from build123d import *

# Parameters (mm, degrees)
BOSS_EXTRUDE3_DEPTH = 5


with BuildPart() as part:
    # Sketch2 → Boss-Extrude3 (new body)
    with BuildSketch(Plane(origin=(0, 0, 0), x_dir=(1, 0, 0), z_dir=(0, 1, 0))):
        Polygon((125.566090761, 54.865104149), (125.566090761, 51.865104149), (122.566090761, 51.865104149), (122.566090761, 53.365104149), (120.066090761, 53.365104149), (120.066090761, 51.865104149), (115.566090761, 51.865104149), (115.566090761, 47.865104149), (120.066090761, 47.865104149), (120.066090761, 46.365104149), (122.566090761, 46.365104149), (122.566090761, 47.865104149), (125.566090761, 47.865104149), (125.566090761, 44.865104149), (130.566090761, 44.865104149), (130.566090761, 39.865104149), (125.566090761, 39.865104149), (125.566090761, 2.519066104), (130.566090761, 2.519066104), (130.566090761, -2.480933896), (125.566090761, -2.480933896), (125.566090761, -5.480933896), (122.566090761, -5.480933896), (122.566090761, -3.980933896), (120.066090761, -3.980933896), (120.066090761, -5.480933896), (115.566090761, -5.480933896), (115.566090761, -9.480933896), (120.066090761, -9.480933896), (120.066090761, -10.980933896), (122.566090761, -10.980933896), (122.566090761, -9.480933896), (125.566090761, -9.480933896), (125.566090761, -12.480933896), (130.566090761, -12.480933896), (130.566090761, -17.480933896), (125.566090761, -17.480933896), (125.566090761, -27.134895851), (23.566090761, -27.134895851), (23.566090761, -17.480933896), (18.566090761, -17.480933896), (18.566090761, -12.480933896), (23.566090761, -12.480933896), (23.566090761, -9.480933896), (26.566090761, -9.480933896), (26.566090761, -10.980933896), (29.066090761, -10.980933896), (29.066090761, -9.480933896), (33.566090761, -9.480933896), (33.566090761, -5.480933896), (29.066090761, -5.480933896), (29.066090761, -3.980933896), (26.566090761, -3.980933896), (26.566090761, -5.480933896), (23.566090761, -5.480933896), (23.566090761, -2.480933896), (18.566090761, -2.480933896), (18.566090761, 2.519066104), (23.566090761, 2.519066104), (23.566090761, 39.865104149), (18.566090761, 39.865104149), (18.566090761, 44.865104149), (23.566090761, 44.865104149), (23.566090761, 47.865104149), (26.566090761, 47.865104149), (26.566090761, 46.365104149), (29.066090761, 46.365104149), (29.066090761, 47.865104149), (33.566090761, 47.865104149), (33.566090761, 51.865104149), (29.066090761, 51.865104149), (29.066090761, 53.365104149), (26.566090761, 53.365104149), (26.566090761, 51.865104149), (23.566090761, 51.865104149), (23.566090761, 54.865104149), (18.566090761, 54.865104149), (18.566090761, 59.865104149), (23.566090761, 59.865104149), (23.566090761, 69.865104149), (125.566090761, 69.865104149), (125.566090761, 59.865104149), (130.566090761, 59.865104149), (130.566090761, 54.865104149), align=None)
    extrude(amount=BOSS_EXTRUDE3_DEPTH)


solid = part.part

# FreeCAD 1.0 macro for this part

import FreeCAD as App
import Part
import Sketcher
from FreeCAD import Vector


def add_polygon(sketch, points):
    """Adds a closed chain of lines whose ends are joined by coincident constraints."""
    first, n = sketch.GeometryCount, len(points)
    for a, b in zip(points, points[1:] + points[:1]):
        sketch.addGeometry(Part.LineSegment(App.Vector(*a, 0), App.Vector(*b, 0)), False)
    for i in range(n):
        sketch.addConstraint(Sketcher.Constraint("Coincident", first + i, 2, first + (i + 1) % n, 1))

doc = App.newDocument("Part")
body = doc.addObject("PartDesign::Body", "Body")

# Sketch on XZ plane
sketch1 = doc.addObject("Sketcher::SketchObject", "Sketch")
body.addObject(sketch1)
sketch1.AttachmentSupport = (doc.XZ_Plane, [""])
sketch1.MapMode = "FlatFace"
add_polygon(sketch1, [(125.6, -51.9), (125.6, -54.9), (130.6, -54.9), (130.6, -59.9), (125.6, -59.9), (125.6, -69.9), (23.6, -69.9), (23.6, -59.9), (18.6, -59.9), (18.6, -54.9), (23.6, -54.9), (23.6, -51.9), (26.6, -51.9), (26.6, -53.4), (29.1, -53.4), (29.1, -51.9), (33.6, -51.9), (33.6, -47.9), (29.1, -47.9), (29.1, -46.4), (26.6, -46.4), (26.6, -47.9), (23.6, -47.9), (23.6, -44.9), (18.6, -44.9), (18.6, -39.9), (23.6, -39.9), (23.6, -2.5), (18.6, -2.5), (18.6, 2.5), (23.6, 2.5), (23.6, 5.5), (26.6, 5.5), (26.6, 4), (29.1, 4), (29.1, 5.5), (33.6, 5.5), (33.6, 9.5), (29.1, 9.5), (29.1, 11), (26.6, 11), (26.6, 9.5), (23.6, 9.5), (23.6, 12.5), (18.6, 12.5), (18.6, 17.5), (23.6, 17.5), (23.6, 27.1), (125.6, 27.1), (125.6, 17.5), (130.6, 17.5), (130.6, 12.5), (125.6, 12.5), (125.6, 9.5), (122.6, 9.5), (122.6, 11), (120.1, 11), (120.1, 9.5), (115.6, 9.5), (115.6, 5.5), (120.1, 5.5), (120.1, 4), (122.6, 4), (122.6, 5.5), (125.6, 5.5), (125.6, 2.5), (130.6, 2.5), (130.6, -2.5), (125.6, -2.5), (125.6, -39.9), (130.6, -39.9), (130.6, -44.9), (125.6, -44.9), (125.6, -47.9), (122.6, -47.9), (122.6, -46.4), (120.1, -46.4), (120.1, -47.9), (115.6, -47.9), (115.6, -51.9), (120.1, -51.9), (120.1, -53.4), (122.6, -53.4), (122.6, -51.9)])  # lines 0-83
sketch1.addConstraint(Sketcher.Constraint("Vertical", 0))
sketch1.addConstraint(Sketcher.Constraint("Horizontal", 1))
sketch1.addConstraint(Sketcher.Constraint("Vertical", 2))
sketch1.addConstraint(Sketcher.Constraint("Horizontal", 3))
sketch1.addConstraint(Sketcher.Constraint("Vertical", 4))
sketch1.addConstraint(Sketcher.Constraint("Horizontal", 5))
sketch1.addConstraint(Sketcher.Constraint("Vertical", 6))
sketch1.addConstraint(Sketcher.Constraint("Horizontal", 7))
sketch1.addConstraint(Sketcher.Constraint("Vertical", 8))
sketch1.addConstraint(Sketcher.Constraint("Horizontal", 9))
sketch1.addConstraint(Sketcher.Constraint("Vertical", 10))
sketch1.addConstraint(Sketcher.Constraint("Horizontal", 11))
sketch1.addConstraint(Sketcher.Constraint("Vertical", 12))
sketch1.addConstraint(Sketcher.Constraint("Horizontal", 13))
sketch1.addConstraint(Sketcher.Constraint("Vertical", 14))
sketch1.addConstraint(Sketcher.Constraint("Horizontal", 15))
sketch1.addConstraint(Sketcher.Constraint("Vertical", 16))
sketch1.addConstraint(Sketcher.Constraint("Horizontal", 17))
sketch1.addConstraint(Sketcher.Constraint("Vertical", 18))
sketch1.addConstraint(Sketcher.Constraint("Horizontal", 19))
sketch1.addConstraint(Sketcher.Constraint("Vertical", 20))
sketch1.addConstraint(Sketcher.Constraint("Horizontal", 21))
sketch1.addConstraint(Sketcher.Constraint("Vertical", 22))
sketch1.addConstraint(Sketcher.Constraint("Horizontal", 23))
sketch1.addConstraint(Sketcher.Constraint("Vertical", 24))
sketch1.addConstraint(Sketcher.Constraint("Horizontal", 25))
sketch1.addConstraint(Sketcher.Constraint("Vertical", 26))
sketch1.addConstraint(Sketcher.Constraint("Horizontal", 27))
sketch1.addConstraint(Sketcher.Constraint("Vertical", 28))
sketch1.addConstraint(Sketcher.Constraint("Horizontal", 29))
sketch1.addConstraint(Sketcher.Constraint("Vertical", 30))
sketch1.addConstraint(Sketcher.Constraint("Horizontal", 31))
sketch1.addConstraint(Sketcher.Constraint("Vertical", 32))
sketch1.addConstraint(Sketcher.Constraint("Horizontal", 33))
sketch1.addConstraint(Sketcher.Constraint("Vertical", 34))
sketch1.addConstraint(Sketcher.Constraint("Horizontal", 35))
sketch1.addConstraint(Sketcher.Constraint("Vertical", 36))
sketch1.addConstraint(Sketcher.Constraint("Horizontal", 37))
sketch1.addConstraint(Sketcher.Constraint("Vertical", 38))
sketch1.addConstraint(Sketcher.Constraint("Horizontal", 39))
sketch1.addConstraint(Sketcher.Constraint("Vertical", 40))
sketch1.addConstraint(Sketcher.Constraint("Horizontal", 41))
sketch1.addConstraint(Sketcher.Constraint("Vertical", 42))
sketch1.addConstraint(Sketcher.Constraint("Horizontal", 43))
sketch1.addConstraint(Sketcher.Constraint("Vertical", 44))
sketch1.addConstraint(Sketcher.Constraint("Horizontal", 45))
sketch1.addConstraint(Sketcher.Constraint("Vertical", 46))
sketch1.addConstraint(Sketcher.Constraint("Horizontal", 47))
sketch1.addConstraint(Sketcher.Constraint("Vertical", 48))
sketch1.addConstraint(Sketcher.Constraint("Horizontal", 49))
sketch1.addConstraint(Sketcher.Constraint("Vertical", 50))
sketch1.addConstraint(Sketcher.Constraint("Horizontal", 51))
sketch1.addConstraint(Sketcher.Constraint("Vertical", 52))
sketch1.addConstraint(Sketcher.Constraint("Horizontal", 53))
sketch1.addConstraint(Sketcher.Constraint("Vertical", 54))
sketch1.addConstraint(Sketcher.Constraint("Horizontal", 55))
sketch1.addConstraint(Sketcher.Constraint("Vertical", 56))
sketch1.addConstraint(Sketcher.Constraint("Horizontal", 57))
sketch1.addConstraint(Sketcher.Constraint("Vertical", 58))
sketch1.addConstraint(Sketcher.Constraint("Horizontal", 59))
sketch1.addConstraint(Sketcher.Constraint("Vertical", 60))
sketch1.addConstraint(Sketcher.Constraint("Horizontal", 61))
sketch1.addConstraint(Sketcher.Constraint("Vertical", 62))
sketch1.addConstraint(Sketcher.Constraint("Horizontal", 63))
sketch1.addConstraint(Sketcher.Constraint("Vertical", 64))
sketch1.addConstraint(Sketcher.Constraint("Horizontal", 65))
sketch1.addConstraint(Sketcher.Constraint("Vertical", 66))
sketch1.addConstraint(Sketcher.Constraint("Horizontal", 67))
sketch1.addConstraint(Sketcher.Constraint("Vertical", 68))
sketch1.addConstraint(Sketcher.Constraint("Horizontal", 69))
sketch1.addConstraint(Sketcher.Constraint("Vertical", 70))
sketch1.addConstraint(Sketcher.Constraint("Horizontal", 71))
sketch1.addConstraint(Sketcher.Constraint("Vertical", 72))
sketch1.addConstraint(Sketcher.Constraint("Horizontal", 73))
sketch1.addConstraint(Sketcher.Constraint("Vertical", 74))
sketch1.addConstraint(Sketcher.Constraint("Horizontal", 75))
sketch1.addConstraint(Sketcher.Constraint("Vertical", 76))
sketch1.addConstraint(Sketcher.Constraint("Horizontal", 77))
sketch1.addConstraint(Sketcher.Constraint("Vertical", 78))
sketch1.addConstraint(Sketcher.Constraint("Horizontal", 79))
sketch1.addConstraint(Sketcher.Constraint("Vertical", 80))
sketch1.addConstraint(Sketcher.Constraint("Horizontal", 81))
sketch1.addConstraint(Sketcher.Constraint("Vertical", 82))
sketch1.addConstraint(Sketcher.Constraint("Horizontal", 83))
sketch1.addConstraint(Sketcher.Constraint("Horizontal", 3, 2, 6, 2))
sketch1.addConstraint(Sketcher.Constraint("Horizontal", 1, 2, 8, 2))
sketch1.addConstraint(Sketcher.Constraint("Horizontal", 11, 2, 14, 2))
sketch1.addConstraint(Sketcher.Constraint("Horizontal", 17, 2, 20, 2))
sketch1.addConstraint(Sketcher.Constraint("Horizontal", 31, 2, 34, 2))
sketch1.addConstraint(Sketcher.Constraint("Horizontal", 37, 2, 40, 2))
sketch1.addConstraint(Sketcher.Constraint("Horizontal", 45, 2, 48, 2))
sketch1.addConstraint(Sketcher.Constraint("Horizontal", 43, 2, 50, 2))
sketch1.addConstraint(Sketcher.Constraint("Horizontal", 41, 2, 52, 2))
sketch1.addConstraint(Sketcher.Constraint("Horizontal", 39, 2, 54, 2))
sketch1.addConstraint(Sketcher.Constraint("Horizontal", 53, 2, 56, 2))
sketch1.addConstraint(Sketcher.Constraint("Horizontal", 35, 2, 58, 2))
sketch1.addConstraint(Sketcher.Constraint("Horizontal", 33, 2, 60, 2))
sketch1.addConstraint(Sketcher.Constraint("Horizontal", 59, 2, 62, 2))
sketch1.addConstraint(Sketcher.Constraint("Horizontal", 29, 2, 64, 2))
sketch1.addConstraint(Sketcher.Constraint("Horizontal", 27, 2, 66, 2))
sketch1.addConstraint(Sketcher.Constraint("Horizontal", 25, 2, 68, 2))
sketch1.addConstraint(Sketcher.Constraint("Horizontal", 23, 2, 70, 2))
sketch1.addConstraint(Sketcher.Constraint("Horizontal", 21, 2, 72, 2))
sketch1.addConstraint(Sketcher.Constraint("Horizontal", 19, 2, 74, 2))
sketch1.addConstraint(Sketcher.Constraint("Horizontal", 73, 2, 76, 2))
sketch1.addConstraint(Sketcher.Constraint("Horizontal", 15, 2, 78, 2))
sketch1.addConstraint(Sketcher.Constraint("Horizontal", 13, 2, 80, 2))
sketch1.addConstraint(Sketcher.Constraint("Horizontal", 79, 2, 82, 2))
sketch1.addConstraint(Sketcher.Constraint("Vertical", 0, 2, 3, 2))
sketch1.addConstraint(Sketcher.Constraint("Vertical", 6, 2, 9, 2))
sketch1.addConstraint(Sketcher.Constraint("Vertical", 14, 2, 17, 2))
sketch1.addConstraint(Sketcher.Constraint("Vertical", 12, 2, 19, 2))
sketch1.addConstraint(Sketcher.Constraint("Vertical", 10, 2, 21, 2))
sketch1.addConstraint(Sketcher.Constraint("Vertical", 8, 2, 23, 2))
sketch1.addConstraint(Sketcher.Constraint("Vertical", 22, 2, 25, 2))
sketch1.addConstraint(Sketcher.Constraint("Vertical", 24, 2, 27, 2))
sketch1.addConstraint(Sketcher.Constraint("Vertical", 26, 2, 29, 2))
sketch1.addConstraint(Sketcher.Constraint("Vertical", 20, 2, 31, 2))
sketch1.addConstraint(Sketcher.Constraint("Vertical", 18, 2, 33, 2))
sketch1.addConstraint(Sketcher.Constraint("Vertical", 16, 2, 35, 2))
sketch1.addConstraint(Sketcher.Constraint("Vertical", 34, 2, 37, 2))
sketch1.addConstraint(Sketcher.Constraint("Vertical", 32, 2, 39, 2))
sketch1.addConstraint(Sketcher.Constraint("Vertical", 30, 2, 41, 2))
sketch1.addConstraint(Sketcher.Constraint("Vertical", 28, 2, 43, 2))
sketch1.addConstraint(Sketcher.Constraint("Vertical", 42, 2, 45, 2))
sketch1.addConstraint(Sketcher.Constraint("Vertical", 4, 2, 47, 2))
sketch1.addConstraint(Sketcher.Constraint("Vertical", 2, 2, 49, 2))
sketch1.addConstraint(Sketcher.Constraint("Vertical", 48, 2, 51, 2))
sketch1.addConstraint(Sketcher.Constraint("Vertical", 56, 2, 59, 2))
sketch1.addConstraint(Sketcher.Constraint("Vertical", 54, 2, 61, 2))
sketch1.addConstraint(Sketcher.Constraint("Vertical", 52, 2, 63, 2))
sketch1.addConstraint(Sketcher.Constraint("Vertical", 50, 2, 65, 2))
sketch1.addConstraint(Sketcher.Constraint("Vertical", 64, 2, 67, 2))
sketch1.addConstraint(Sketcher.Constraint("Vertical", 66, 2, 69, 2))
sketch1.addConstraint(Sketcher.Constraint("Vertical", 68, 2, 71, 2))
sketch1.addConstraint(Sketcher.Constraint("Vertical", 62, 2, 73, 2))
sketch1.addConstraint(Sketcher.Constraint("Vertical", 60, 2, 75, 2))
sketch1.addConstraint(Sketcher.Constraint("Vertical", 58, 2, 77, 2))
sketch1.addConstraint(Sketcher.Constraint("Vertical", 76, 2, 79, 2))
sketch1.addConstraint(Sketcher.Constraint("Vertical", 74, 2, 81, 2))
sketch1.addConstraint(Sketcher.Constraint("Equal", 3, 7))
sketch1.addConstraint(Sketcher.Constraint("Equal", 41, 53))
sketch1.addConstraint(Sketcher.Constraint("Equal", 39, 55))
sketch1.addConstraint(Sketcher.Constraint("Equal", 37, 57))
sketch1.addConstraint(Sketcher.Constraint("Equal", 83, 0))
sketch1.addConstraint(Sketcher.Constraint("Equal", 71, 2))
sketch1.addConstraint(Sketcher.Constraint("Equal", 14, 18))
sketch1.addConstraint(Sketcher.Constraint("Equal", 10, 22))
sketch1.addConstraint(Sketcher.Constraint("Equal", 8, 24))
sketch1.addConstraint(Sketcher.Constraint("Equal", 24, 28))
sketch1.addConstraint(Sketcher.Constraint("Equal", 22, 30))
sketch1.addConstraint(Sketcher.Constraint("Equal", 20, 32))
sketch1.addConstraint(Sketcher.Constraint("Equal", 16, 36))
sketch1.addConstraint(Sketcher.Constraint("Equal", 34, 38))
sketch1.addConstraint(Sketcher.Constraint("Equal", 30, 42))
sketch1.addConstraint(Sketcher.Constraint("Equal", 28, 44))
sketch1.addConstraint(Sketcher.Constraint("DistanceX", 1, 1, 1, 2, 5.0))
sketch1.addConstraint(Sketcher.Constraint("DistanceX", 5, 2, 5, 1, 102.0))
sketch1.addConstraint(Sketcher.Constraint("DistanceX", 11, 1, 11, 2, 3.0))
sketch1.addConstraint(Sketcher.Constraint("DistanceY", 4, 2, 4, 1, 10.0))
sketch1.addConstraint(Sketcher.Constraint("DistanceY", 16, 1, 16, 2, 4.0))
sketch1.addConstraint(Sketcher.Constraint("DistanceX", 13, 1, 13, 2, 2.5))
sketch1.addConstraint(Sketcher.Constraint("DistanceX", 15, 1, 15, 2, 4.5))
sketch1.addConstraint(Sketcher.Constraint("DistanceY", 12, 2, 12, 1, 1.5))
sketch1.addConstraint(Sketcher.Constraint("DistanceY", 26, 1, 26, 2, 37.346038))
sketch1.addConstraint(Sketcher.Constraint("DistanceY", 46, 1, 46, 2, 9.653962))
sketch1.addConstraint(Sketcher.Constraint("DistanceX", -1, 1, 0, 2, 125.566091))
sketch1.addConstraint(Sketcher.Constraint("DistanceY", 0, 2, -1, 1, 54.865104))
pad1 = doc.addObject("PartDesign::Pad", "Pad")
body.addObject(pad1)
pad1.Profile = sketch1
pad1.Length = 5
pad1.Reversed = True

doc.recompute()
